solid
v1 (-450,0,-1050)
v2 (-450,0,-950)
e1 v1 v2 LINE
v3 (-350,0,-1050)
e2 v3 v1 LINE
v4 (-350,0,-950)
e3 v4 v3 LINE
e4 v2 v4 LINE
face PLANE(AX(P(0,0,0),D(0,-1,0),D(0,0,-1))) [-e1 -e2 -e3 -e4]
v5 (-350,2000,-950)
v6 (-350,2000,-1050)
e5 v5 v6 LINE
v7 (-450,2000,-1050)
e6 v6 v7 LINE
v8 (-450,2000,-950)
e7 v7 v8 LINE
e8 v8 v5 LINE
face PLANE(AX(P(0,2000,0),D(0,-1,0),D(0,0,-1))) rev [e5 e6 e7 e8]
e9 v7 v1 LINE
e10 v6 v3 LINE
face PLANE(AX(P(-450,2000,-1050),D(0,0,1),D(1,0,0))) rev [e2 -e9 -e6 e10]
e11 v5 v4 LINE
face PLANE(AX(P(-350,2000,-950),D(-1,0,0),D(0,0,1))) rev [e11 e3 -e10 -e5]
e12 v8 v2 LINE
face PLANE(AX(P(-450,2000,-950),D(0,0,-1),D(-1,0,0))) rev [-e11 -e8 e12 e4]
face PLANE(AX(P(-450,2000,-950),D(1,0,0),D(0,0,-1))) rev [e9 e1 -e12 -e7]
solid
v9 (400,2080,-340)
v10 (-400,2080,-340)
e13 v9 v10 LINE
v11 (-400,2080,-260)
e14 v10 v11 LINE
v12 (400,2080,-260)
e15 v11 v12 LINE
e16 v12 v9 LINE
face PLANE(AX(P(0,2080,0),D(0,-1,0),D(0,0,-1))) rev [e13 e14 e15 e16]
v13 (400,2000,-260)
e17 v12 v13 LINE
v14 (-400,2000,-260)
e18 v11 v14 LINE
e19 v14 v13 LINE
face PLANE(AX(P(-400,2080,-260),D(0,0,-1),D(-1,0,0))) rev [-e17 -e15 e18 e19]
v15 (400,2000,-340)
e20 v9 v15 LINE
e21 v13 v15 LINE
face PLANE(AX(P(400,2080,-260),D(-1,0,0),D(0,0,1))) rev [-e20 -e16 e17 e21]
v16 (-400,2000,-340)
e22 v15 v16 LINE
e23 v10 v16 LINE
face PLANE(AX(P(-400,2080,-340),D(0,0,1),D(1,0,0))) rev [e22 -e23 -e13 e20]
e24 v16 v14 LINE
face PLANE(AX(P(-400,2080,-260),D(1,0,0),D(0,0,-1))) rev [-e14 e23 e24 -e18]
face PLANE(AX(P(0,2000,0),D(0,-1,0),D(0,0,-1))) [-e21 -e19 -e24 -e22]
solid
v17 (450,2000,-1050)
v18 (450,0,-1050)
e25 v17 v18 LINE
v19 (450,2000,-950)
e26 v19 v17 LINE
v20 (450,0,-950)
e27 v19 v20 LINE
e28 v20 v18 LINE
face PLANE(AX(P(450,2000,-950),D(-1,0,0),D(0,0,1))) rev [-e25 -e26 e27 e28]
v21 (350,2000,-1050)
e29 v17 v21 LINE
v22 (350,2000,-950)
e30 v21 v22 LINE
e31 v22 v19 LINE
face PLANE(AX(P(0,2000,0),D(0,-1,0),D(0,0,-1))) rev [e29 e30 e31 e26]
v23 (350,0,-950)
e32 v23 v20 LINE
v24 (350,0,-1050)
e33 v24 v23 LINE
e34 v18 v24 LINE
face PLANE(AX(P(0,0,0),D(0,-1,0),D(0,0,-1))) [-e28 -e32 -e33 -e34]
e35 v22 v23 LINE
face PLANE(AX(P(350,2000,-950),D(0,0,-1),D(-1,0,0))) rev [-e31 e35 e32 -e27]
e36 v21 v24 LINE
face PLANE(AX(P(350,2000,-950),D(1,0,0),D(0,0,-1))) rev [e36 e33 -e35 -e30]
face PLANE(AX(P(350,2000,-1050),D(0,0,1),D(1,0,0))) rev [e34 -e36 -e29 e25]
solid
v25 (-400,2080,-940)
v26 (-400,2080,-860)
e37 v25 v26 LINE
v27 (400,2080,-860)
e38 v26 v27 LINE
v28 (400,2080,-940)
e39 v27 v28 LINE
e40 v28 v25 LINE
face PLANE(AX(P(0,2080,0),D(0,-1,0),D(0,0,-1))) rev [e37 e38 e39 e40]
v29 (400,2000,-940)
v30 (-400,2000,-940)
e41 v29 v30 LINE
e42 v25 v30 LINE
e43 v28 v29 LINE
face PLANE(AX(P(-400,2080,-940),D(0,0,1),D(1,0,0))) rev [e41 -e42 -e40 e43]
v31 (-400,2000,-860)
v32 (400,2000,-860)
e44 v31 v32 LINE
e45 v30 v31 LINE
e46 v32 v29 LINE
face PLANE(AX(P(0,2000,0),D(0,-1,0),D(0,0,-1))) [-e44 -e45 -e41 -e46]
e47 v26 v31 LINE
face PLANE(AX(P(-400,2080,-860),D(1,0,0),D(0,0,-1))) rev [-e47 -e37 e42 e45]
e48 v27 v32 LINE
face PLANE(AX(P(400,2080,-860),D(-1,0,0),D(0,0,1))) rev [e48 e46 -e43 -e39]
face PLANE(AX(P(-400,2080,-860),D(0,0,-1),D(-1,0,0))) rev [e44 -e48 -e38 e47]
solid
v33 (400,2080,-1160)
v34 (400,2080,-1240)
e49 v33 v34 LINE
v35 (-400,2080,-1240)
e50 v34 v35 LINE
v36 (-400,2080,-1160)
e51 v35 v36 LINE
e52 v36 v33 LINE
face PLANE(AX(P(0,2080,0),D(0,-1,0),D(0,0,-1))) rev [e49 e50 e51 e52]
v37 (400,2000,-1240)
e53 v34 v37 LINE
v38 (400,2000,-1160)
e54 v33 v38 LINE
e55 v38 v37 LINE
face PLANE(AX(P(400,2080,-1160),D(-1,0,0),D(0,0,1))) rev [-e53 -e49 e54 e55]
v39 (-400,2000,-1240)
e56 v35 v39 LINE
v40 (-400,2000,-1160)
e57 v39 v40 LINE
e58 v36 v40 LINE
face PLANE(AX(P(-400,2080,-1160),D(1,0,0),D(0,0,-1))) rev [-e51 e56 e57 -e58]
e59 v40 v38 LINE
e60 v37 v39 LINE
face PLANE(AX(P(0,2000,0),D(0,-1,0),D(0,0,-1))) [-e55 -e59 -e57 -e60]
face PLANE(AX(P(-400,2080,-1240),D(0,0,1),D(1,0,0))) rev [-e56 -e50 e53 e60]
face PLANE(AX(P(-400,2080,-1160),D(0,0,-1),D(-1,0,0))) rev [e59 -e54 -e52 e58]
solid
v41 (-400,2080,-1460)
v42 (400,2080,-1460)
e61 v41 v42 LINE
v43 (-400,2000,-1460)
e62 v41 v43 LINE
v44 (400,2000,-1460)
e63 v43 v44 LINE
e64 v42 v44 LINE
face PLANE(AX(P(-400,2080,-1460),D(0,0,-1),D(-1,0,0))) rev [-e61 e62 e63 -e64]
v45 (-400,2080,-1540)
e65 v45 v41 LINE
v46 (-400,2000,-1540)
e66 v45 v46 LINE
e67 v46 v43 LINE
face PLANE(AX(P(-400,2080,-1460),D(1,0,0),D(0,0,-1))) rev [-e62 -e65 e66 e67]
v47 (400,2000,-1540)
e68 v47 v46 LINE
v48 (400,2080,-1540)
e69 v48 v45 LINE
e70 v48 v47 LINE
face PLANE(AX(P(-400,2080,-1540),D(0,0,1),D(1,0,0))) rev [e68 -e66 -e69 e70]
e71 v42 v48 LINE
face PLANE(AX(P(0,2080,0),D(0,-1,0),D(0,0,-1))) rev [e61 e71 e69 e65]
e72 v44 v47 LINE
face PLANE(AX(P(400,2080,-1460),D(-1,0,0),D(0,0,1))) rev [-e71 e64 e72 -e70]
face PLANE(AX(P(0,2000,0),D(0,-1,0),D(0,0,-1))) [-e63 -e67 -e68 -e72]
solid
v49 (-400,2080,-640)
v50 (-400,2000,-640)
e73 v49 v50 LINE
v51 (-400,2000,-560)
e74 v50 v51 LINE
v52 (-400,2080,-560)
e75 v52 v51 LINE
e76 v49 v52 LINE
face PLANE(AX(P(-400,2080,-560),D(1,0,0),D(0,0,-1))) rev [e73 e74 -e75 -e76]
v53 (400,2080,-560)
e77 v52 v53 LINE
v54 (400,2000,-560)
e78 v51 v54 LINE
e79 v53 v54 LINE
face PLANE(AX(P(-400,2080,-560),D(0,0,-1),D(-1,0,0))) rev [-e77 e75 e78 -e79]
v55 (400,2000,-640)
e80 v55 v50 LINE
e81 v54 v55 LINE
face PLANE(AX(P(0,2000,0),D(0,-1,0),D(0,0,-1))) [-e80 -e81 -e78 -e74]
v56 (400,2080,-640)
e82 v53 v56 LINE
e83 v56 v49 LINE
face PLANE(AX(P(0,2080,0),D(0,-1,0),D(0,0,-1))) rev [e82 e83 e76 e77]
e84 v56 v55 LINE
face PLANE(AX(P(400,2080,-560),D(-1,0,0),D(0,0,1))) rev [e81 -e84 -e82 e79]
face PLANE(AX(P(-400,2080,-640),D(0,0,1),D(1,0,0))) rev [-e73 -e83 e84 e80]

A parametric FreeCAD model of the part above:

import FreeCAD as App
import Part
import Sketcher
from FreeCAD import Vector


def add_polygon(sketch, points):
    """Adds a closed chain of lines whose ends are joined by coincident constraints."""
    first, n = sketch.GeometryCount, len(points)
    for a, b in zip(points, points[1:] + points[:1]):
        sketch.addGeometry(Part.LineSegment(App.Vector(*a, 0), App.Vector(*b, 0)), False)
    for i in range(n):
        sketch.addConstraint(Sketcher.Constraint("Coincident", first + i, 2, first + (i + 1) % n, 1))

doc = App.newDocument("Part")
body = doc.addObject("PartDesign::Body", "Body")

# Sketch on XZ plane
sketch1 = doc.addObject("Sketcher::SketchObject", "Sketch")
body.addObject(sketch1)
sketch1.AttachmentSupport = (doc.XZ_Plane, [""])
sketch1.MapMode = "FlatFace"
add_polygon(sketch1, [(-450, -1050), (-450, -950), (-350, -950), (-350, -1050)])  # lines 0-3
sketch1.addConstraint([
    Sketcher.Constraint("Vertical", 0),
    Sketcher.Constraint("Horizontal", 1),
    Sketcher.Constraint("Vertical", 2),
    Sketcher.Constraint("Horizontal", 3),
    Sketcher.Constraint("Equal", 3, 0),
    Sketcher.Constraint("DistanceX", 1, 1, 1, 2, 100.0),
    Sketcher.Constraint("DistanceX", 0, 2, -1, 1, 450.0),
    Sketcher.Constraint("DistanceY", 0, 2, -1, 1, 950.0),
])
pad1 = doc.addObject("PartDesign::Pad", "Pad")
body.addObject(pad1)
pad1.Profile = sketch1
pad1.Length = 2000
pad1.Reversed = True
body2 = doc.addObject("PartDesign::Body", "Body001")

# Sketch on XZ plane
sketch2 = doc.addObject("Sketcher::SketchObject", "Sketch001")
body2.addObject(sketch2)
sketch2.AttachmentSupport = (doc.getObject("XZ_Plane001"), [""])
sketch2.MapMode = "FlatFace"
add_polygon(sketch2, [(350, -1050), (350, -950), (450, -950), (450, -1050)])  # lines 0-3
sketch2.addConstraint([
    Sketcher.Constraint("Vertical", 0),
    Sketcher.Constraint("Horizontal", 1),
    Sketcher.Constraint("Vertical", 2),
    Sketcher.Constraint("Horizontal", 3),
    Sketcher.Constraint("Equal", 3, 0),
    Sketcher.Constraint("DistanceX", 1, 1, 1, 2, 100.0),
    Sketcher.Constraint("DistanceX", -1, 1, 0, 2, 350.0),
    Sketcher.Constraint("DistanceY", 0, 2, -1, 1, 950.0),
])
pad2 = doc.addObject("PartDesign::Pad", "Pad001")
body2.addObject(pad2)
pad2.Profile = sketch2
pad2.Length = 2000
pad2.Reversed = True
body3 = doc.addObject("PartDesign::Body", "Body002")

# Sketch on XZ plane
sketch3 = doc.addObject("Sketcher::SketchObject", "Sketch002")
body3.addObject(sketch3)
sketch3.AttachmentSupport = (doc.getObject("XZ_Plane002"), [""])
sketch3.MapMode = "FlatFace"
sketch3.AttachmentOffset = App.Placement(Vector(0, 0, -2000), App.Rotation())
add_polygon(sketch3, [(-400, -340), (-400, -260), (400, -260), (400, -340)])  # lines 0-3
sketch3.addConstraint([
    Sketcher.Constraint("Vertical", 0),
    Sketcher.Constraint("Horizontal", 1),
    Sketcher.Constraint("Vertical", 2),
    Sketcher.Constraint("Horizontal", 3),
    Sketcher.Constraint("DistanceX", 1, 1, 1, 2, 800.0),
    Sketcher.Constraint("DistanceY", 0, 1, 0, 2, 80.0),
    Sketcher.Constraint("DistanceX", 0, 2, -1, 1, 400.0),
    Sketcher.Constraint("DistanceY", 0, 2, -1, 1, 260.0),
])
pad3 = doc.addObject("PartDesign::Pad", "Pad002")
body3.addObject(pad3)
pad3.Profile = sketch3
pad3.Length = 80
pad3.Reversed = True
body4 = doc.addObject("PartDesign::Body", "Body003")

# Sketch on XZ plane
sketch4 = doc.addObject("Sketcher::SketchObject", "Sketch003")
body4.addObject(sketch4)
sketch4.AttachmentSupport = (doc.getObject("XZ_Plane003"), [""])
sketch4.MapMode = "FlatFace"
sketch4.AttachmentOffset = App.Placement(Vector(0, 0, -2000), App.Rotation())
add_polygon(sketch4, [(-400, -640), (-400, -560), (400, -560), (400, -640)])  # lines 0-3
sketch4.addConstraint([
    Sketcher.Constraint("Vertical", 0),
    Sketcher.Constraint("Horizontal", 1),
    Sketcher.Constraint("Vertical", 2),
    Sketcher.Constraint("Horizontal", 3),
    Sketcher.Constraint("DistanceX", 1, 1, 1, 2, 800.0),
    Sketcher.Constraint("DistanceY", 0, 1, 0, 2, 80.0),
    Sketcher.Constraint("DistanceX", 0, 2, -1, 1, 400.0),
    Sketcher.Constraint("DistanceY", 0, 2, -1, 1, 560.0),
])
pad4 = doc.addObject("PartDesign::Pad", "Pad003")
body4.addObject(pad4)
pad4.Profile = sketch4
pad4.Length = 80
pad4.Reversed = True
body5 = doc.addObject("PartDesign::Body", "Body004")

# Sketch on XZ plane
sketch5 = doc.addObject("Sketcher::SketchObject", "Sketch004")
body5.addObject(sketch5)
sketch5.AttachmentSupport = (doc.getObject("XZ_Plane004"), [""])
sketch5.MapMode = "FlatFace"
sketch5.AttachmentOffset = App.Placement(Vector(0, 0, -2000), App.Rotation())
add_polygon(sketch5, [(-400, -940), (-400, -860), (400, -860), (400, -940)])  # lines 0-3
sketch5.addConstraint([
    Sketcher.Constraint("Vertical", 0),
    Sketcher.Constraint("Horizontal", 1),
    Sketcher.Constraint("Vertical", 2),
    Sketcher.Constraint("Horizontal", 3),
    Sketcher.Constraint("DistanceX", 1, 1, 1, 2, 800.0),
    Sketcher.Constraint("DistanceY", 0, 1, 0, 2, 80.0),
    Sketcher.Constraint("DistanceX", 0, 2, -1, 1, 400.0),
    Sketcher.Constraint("DistanceY", 0, 2, -1, 1, 860.0),
])
pad5 = doc.addObject("PartDesign::Pad", "Pad004")
body5.addObject(pad5)
pad5.Profile = sketch5
pad5.Length = 80
pad5.Reversed = True
body6 = doc.addObject("PartDesign::Body", "Body005")

# Sketch on XZ plane
sketch6 = doc.addObject("Sketcher::SketchObject", "Sketch005")
body6.addObject(sketch6)
sketch6.AttachmentSupport = (doc.getObject("XZ_Plane005"), [""])
sketch6.MapMode = "FlatFace"
sketch6.AttachmentOffset = App.Placement(Vector(0, 0, -2000), App.Rotation())
add_polygon(sketch6, [(-400, -1240), (-400, -1160), (400, -1160), (400, -1240)])  # lines 0-3
sketch6.addConstraint([
    Sketcher.Constraint("Vertical", 0),
    Sketcher.Constraint("Horizontal", 1),
    Sketcher.Constraint("Vertical", 2),
    Sketcher.Constraint("Horizontal", 3),
    Sketcher.Constraint("DistanceX", 1, 1, 1, 2, 800.0),
    Sketcher.Constraint("DistanceY", 0, 1, 0, 2, 80.0),
    Sketcher.Constraint("DistanceX", 0, 2, -1, 1, 400.0),
    Sketcher.Constraint("DistanceY", 0, 2, -1, 1, 1160.0),
])
pad6 = doc.addObject("PartDesign::Pad", "Pad005")
body6.addObject(pad6)
pad6.Profile = sketch6
pad6.Length = 80
pad6.Reversed = True
body7 = doc.addObject("PartDesign::Body", "Body006")

# Sketch on XZ plane
sketch7 = doc.addObject("Sketcher::SketchObject", "Sketch006")
body7.addObject(sketch7)
sketch7.AttachmentSupport = (doc.getObject("XZ_Plane006"), [""])
sketch7.MapMode = "FlatFace"
sketch7.AttachmentOffset = App.Placement(Vector(0, 0, -2000), App.Rotation())
add_polygon(sketch7, [(-400, -1540), (-400, -1460), (400, -1460), (400, -1540)])  # lines 0-3
sketch7.addConstraint([
    Sketcher.Constraint("Vertical", 0),
    Sketcher.Constraint("Horizontal", 1),
    Sketcher.Constraint("Vertical", 2),
    Sketcher.Constraint("Horizontal", 3),
    Sketcher.Constraint("DistanceX", 1, 1, 1, 2, 800.0),
    Sketcher.Constraint("DistanceY", 0, 1, 0, 2, 80.0),
    Sketcher.Constraint("DistanceX", 0, 2, -1, 1, 400.0),
    Sketcher.Constraint("DistanceY", 0, 2, -1, 1, 1460.0),
])
pad7 = doc.addObject("PartDesign::Pad", "Pad006")
body7.addObject(pad7)
pad7.Profile = sketch7
pad7.Length = 80
pad7.Reversed = True

doc.recompute()
